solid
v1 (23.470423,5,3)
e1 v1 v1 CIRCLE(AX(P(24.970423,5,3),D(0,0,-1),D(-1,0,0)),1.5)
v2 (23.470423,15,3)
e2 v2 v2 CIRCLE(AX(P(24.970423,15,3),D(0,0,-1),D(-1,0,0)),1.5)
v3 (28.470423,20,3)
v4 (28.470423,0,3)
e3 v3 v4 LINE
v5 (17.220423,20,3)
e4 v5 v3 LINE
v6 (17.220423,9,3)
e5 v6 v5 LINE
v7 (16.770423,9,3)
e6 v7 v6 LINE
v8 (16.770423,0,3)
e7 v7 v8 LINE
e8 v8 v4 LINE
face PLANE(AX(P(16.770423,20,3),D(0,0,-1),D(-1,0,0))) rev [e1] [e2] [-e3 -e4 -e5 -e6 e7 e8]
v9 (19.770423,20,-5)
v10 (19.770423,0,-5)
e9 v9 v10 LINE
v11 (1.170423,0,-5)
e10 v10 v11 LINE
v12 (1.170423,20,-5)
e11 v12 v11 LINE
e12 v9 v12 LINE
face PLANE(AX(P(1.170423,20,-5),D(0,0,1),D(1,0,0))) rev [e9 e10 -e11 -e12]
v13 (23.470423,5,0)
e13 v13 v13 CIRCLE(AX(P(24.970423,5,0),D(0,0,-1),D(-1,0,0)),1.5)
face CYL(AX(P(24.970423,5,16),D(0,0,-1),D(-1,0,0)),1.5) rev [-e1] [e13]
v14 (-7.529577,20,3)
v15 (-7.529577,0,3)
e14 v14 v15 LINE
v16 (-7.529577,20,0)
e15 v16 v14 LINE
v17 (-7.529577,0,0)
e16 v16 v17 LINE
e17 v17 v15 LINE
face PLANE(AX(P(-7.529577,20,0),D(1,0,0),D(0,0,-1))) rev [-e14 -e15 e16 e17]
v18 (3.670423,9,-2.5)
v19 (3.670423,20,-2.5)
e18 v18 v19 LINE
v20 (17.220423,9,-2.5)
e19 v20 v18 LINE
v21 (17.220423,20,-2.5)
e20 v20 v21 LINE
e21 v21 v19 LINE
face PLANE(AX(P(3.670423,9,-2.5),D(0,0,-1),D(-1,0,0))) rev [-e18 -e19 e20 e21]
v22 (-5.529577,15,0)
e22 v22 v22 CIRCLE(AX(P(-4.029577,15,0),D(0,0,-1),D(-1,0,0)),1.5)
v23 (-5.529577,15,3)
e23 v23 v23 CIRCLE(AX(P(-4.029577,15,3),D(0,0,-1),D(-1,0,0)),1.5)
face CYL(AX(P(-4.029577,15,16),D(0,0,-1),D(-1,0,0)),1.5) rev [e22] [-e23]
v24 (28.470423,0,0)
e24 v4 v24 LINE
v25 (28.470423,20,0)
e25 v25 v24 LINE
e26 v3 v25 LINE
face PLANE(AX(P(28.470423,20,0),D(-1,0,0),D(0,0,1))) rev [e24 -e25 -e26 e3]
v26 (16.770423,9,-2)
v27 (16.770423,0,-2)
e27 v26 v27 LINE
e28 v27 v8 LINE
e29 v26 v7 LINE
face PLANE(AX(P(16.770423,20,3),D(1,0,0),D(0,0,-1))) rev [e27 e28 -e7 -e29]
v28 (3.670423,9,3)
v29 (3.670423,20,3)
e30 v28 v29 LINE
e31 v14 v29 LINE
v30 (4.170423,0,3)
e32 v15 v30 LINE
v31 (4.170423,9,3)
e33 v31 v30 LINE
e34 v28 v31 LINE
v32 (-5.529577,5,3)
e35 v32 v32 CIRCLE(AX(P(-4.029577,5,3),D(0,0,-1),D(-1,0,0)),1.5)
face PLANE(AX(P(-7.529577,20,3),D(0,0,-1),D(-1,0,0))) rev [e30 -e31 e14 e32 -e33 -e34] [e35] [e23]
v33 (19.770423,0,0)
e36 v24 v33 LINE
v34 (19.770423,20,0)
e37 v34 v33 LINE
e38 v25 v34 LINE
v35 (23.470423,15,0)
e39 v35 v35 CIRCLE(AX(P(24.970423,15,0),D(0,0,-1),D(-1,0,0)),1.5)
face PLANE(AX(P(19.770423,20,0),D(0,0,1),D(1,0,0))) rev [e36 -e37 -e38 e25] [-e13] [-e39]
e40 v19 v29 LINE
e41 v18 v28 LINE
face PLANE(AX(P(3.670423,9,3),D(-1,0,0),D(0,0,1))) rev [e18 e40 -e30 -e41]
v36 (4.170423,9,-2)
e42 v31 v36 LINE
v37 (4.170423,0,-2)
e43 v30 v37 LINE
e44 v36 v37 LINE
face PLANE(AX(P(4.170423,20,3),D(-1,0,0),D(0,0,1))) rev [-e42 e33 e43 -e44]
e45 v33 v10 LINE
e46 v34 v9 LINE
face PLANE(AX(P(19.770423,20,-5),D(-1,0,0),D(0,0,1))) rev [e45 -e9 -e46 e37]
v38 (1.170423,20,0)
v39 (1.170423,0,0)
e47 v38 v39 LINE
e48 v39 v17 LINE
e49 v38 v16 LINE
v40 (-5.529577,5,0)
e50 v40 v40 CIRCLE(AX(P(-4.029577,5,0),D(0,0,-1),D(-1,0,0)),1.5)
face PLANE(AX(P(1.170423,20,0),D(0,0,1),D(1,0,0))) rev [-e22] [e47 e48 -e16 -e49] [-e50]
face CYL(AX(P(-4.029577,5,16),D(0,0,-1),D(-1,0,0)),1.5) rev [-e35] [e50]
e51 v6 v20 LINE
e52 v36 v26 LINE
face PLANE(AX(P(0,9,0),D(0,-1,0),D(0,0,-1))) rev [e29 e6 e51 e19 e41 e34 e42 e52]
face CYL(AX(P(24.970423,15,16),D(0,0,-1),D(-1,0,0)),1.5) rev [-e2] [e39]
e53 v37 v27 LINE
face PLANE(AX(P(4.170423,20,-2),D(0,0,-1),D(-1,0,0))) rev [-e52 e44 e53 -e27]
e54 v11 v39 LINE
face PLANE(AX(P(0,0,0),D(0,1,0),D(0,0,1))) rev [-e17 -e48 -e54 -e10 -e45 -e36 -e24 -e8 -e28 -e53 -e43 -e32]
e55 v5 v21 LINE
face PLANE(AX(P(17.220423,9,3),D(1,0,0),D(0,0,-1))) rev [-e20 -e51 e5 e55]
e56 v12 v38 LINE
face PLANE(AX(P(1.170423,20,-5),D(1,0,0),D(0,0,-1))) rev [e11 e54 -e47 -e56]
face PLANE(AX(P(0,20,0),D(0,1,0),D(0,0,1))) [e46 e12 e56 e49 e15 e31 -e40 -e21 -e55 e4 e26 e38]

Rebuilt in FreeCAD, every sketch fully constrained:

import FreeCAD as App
import Part
import Sketcher

doc = App.newDocument("Part")
body = doc.addObject("PartDesign::Body", "Body")

# Sketch on XZ plane
sketch1 = body.newObject("Sketcher::SketchObject", "Sketch")
sketch1.AttachmentSupport = (doc.getObject("XZ_Plane"), [""])
sketch1.MapMode = "FlatFace"
sketch1.addGeometry([
    Part.LineSegment(App.Vector(16.770423, 3, 0), App.Vector(28.470423, 3, 0)),  # 0
    Part.LineSegment(App.Vector(28.470423, 3, 0), App.Vector(28.470423, 0, 0)),  # 1
    Part.LineSegment(App.Vector(28.470423, 0, 0), App.Vector(19.770423, 0, 0)),  # 2
    Part.LineSegment(App.Vector(19.770423, 0, 0), App.Vector(19.770423, -5, 0)),  # 3
    Part.LineSegment(App.Vector(19.770423, -5, 0), App.Vector(1.170423, -5, 0)),  # 4
    Part.LineSegment(App.Vector(1.170423, -5, 0), App.Vector(1.170423, 0, 0)),  # 5
    Part.LineSegment(App.Vector(1.170423, 0, 0), App.Vector(-7.529577, 0, 0)),  # 6
    Part.LineSegment(App.Vector(-7.529577, 0, 0), App.Vector(-7.529577, 3, 0)),  # 7
    Part.LineSegment(App.Vector(-7.529577, 3, 0), App.Vector(4.170423, 3, 0)),  # 8
    Part.LineSegment(App.Vector(4.170423, 3, 0), App.Vector(4.170423, -2, 0)),  # 9
    Part.LineSegment(App.Vector(4.170423, -2, 0), App.Vector(16.770423, -2, 0)),  # 10
    Part.LineSegment(App.Vector(16.770423, -2, 0), App.Vector(16.770423, 3, 0)),  # 11
], False)
sketch1.addConstraint([
    Sketcher.Constraint("Coincident", 0, 2, 1, 1),
    Sketcher.Constraint("Coincident", 1, 2, 2, 1),
    Sketcher.Constraint("Coincident", 2, 2, 3, 1),
    Sketcher.Constraint("Coincident", 3, 2, 4, 1),
    Sketcher.Constraint("Coincident", 4, 2, 5, 1),
    Sketcher.Constraint("Coincident", 5, 2, 6, 1),
    Sketcher.Constraint("Coincident", 6, 2, 7, 1),
    Sketcher.Constraint("Coincident", 7, 2, 8, 1),
    Sketcher.Constraint("Coincident", 8, 2, 9, 1),
    Sketcher.Constraint("Coincident", 9, 2, 10, 1),
    Sketcher.Constraint("Coincident", 10, 2, 11, 1),
    Sketcher.Constraint("Coincident", 11, 2, 0, 1),
    Sketcher.Constraint("Horizontal", 0),
    Sketcher.Constraint("Vertical", 1),
    Sketcher.Constraint("Horizontal", 2),
    Sketcher.Constraint("Vertical", 3),
    Sketcher.Constraint("Horizontal", 4),
    Sketcher.Constraint("Vertical", 5),
    Sketcher.Constraint("Horizontal", 6),
    Sketcher.Constraint("Vertical", 7),
    Sketcher.Constraint("Horizontal", 8),
    Sketcher.Constraint("Vertical", 9),
    Sketcher.Constraint("Horizontal", 10),
    Sketcher.Constraint("Vertical", 11),
    Sketcher.Constraint("PointOnObject", 1, 2, -1),
    Sketcher.Constraint("PointOnObject", 5, 2, -1),
    Sketcher.Constraint("Horizontal", 0, 2, 7, 2),
    Sketcher.Constraint("Equal", 2, 6),
    Sketcher.Constraint("Equal", 0, 8),
    Sketcher.Constraint("Equal", 5, 9),
    Sketcher.Constraint("DistanceY", 1, 2, 1, 1, 3.0),
    Sketcher.Constraint("DistanceY", 3, 2, 3, 1, 5.0),
    Sketcher.Constraint("DistanceX", 0, 1, 0, 2, 11.7),
    Sketcher.Constraint("DistanceX", 2, 2, 2, 1, 8.7),
    Sketcher.Constraint("DistanceX", 4, 2, 4, 1, 18.6),
    Sketcher.Constraint("DistanceX", -1, 1, 0, 2, 28.470423),
])
pad1 = body.newObject("PartDesign::Pad", "Pad")
pad1.Profile = sketch1
pad1.Length = 20
pad1.Reversed = True

# Sketch on XY plane
sketch2 = body.newObject("Sketcher::SketchObject", "Sketch001")
sketch2.AttachmentSupport = (doc.getObject("XY_Plane"), [""])
sketch2.MapMode = "FlatFace"
sketch2.addGeometry([
    Part.Circle(App.Vector(-4.029577, 15, 0), App.Vector(0, 0, 1), 1.5),
    Part.Circle(App.Vector(-4.029577, 5, 0), App.Vector(0, 0, 1), 1.5),
    Part.Circle(App.Vector(24.970423, 5, 0), App.Vector(0, 0, 1), 1.5),
    Part.Circle(App.Vector(24.970423, 15, 0), App.Vector(0, 0, 1), 1.5),
], False)
sketch2.addConstraint([
    Sketcher.Constraint("Equal", 0, 1),
    Sketcher.Constraint("Equal", 1, 2),
    Sketcher.Constraint("Equal", 2, 3),
    Sketcher.Constraint("Horizontal", 1, 3, 2, 3),
    Sketcher.Constraint("Horizontal", 0, 3, 3, 3),
    Sketcher.Constraint("Vertical", 0, 3, 1, 3),
    Sketcher.Constraint("Vertical", 2, 3, 3, 3),
    Sketcher.Constraint("Diameter", 0, 3.0),
    Sketcher.Constraint("DistanceY", -1, 1, 0, 3, 15.0),
    Sketcher.Constraint("DistanceY", -1, 1, 1, 3, 5.0),
    Sketcher.Constraint("DistanceX", 1, 3, 2, 3, 29.0),
    Sketcher.Constraint("DistanceX", 0, 3, -1, 1, 4.029577),
])
pocket1 = body.newObject("PartDesign::Pocket", "Pocket")
pocket1.Profile = sketch2
pocket1.Length = 16
pocket1.Reversed = True

# Sketch on XZ plane
sketch3 = body.newObject("Sketcher::SketchObject", "Sketch002")
sketch3.AttachmentSupport = (doc.getObject("XZ_Plane"), [""])
sketch3.MapMode = "FlatFace"
sketch3.AttachmentOffset = App.Placement(App.Vector(0, 0, -20), App.Rotation())
sketch3.addGeometry([
    Part.LineSegment(App.Vector(4.170423, 3, 0), App.Vector(4.170423, -2, 0)),  # 0
    Part.LineSegment(App.Vector(4.170423, -2, 0), App.Vector(16.770423, -2, 0)),  # 1
    Part.LineSegment(App.Vector(16.770423, -2, 0), App.Vector(16.770423, 3, 0)),  # 2
    Part.LineSegment(App.Vector(16.770423, 3, 0), App.Vector(17.220423, 3, 0)),  # 3
    Part.LineSegment(App.Vector(17.220423, 3, 0), App.Vector(17.220423, -2.5, 0)),  # 4
    Part.LineSegment(App.Vector(17.220423, -2.5, 0), App.Vector(3.670423, -2.5, 0)),  # 5
    Part.LineSegment(App.Vector(3.670423, -2.5, 0), App.Vector(3.670423, 3, 0)),  # 6
    Part.LineSegment(App.Vector(3.670423, 3, 0), App.Vector(4.170423, 3, 0)),  # 7
], False)
sketch3.addConstraint([
    Sketcher.Constraint("Coincident", 0, 2, 1, 1),
    Sketcher.Constraint("Coincident", 1, 2, 2, 1),
    Sketcher.Constraint("Coincident", 2, 2, 3, 1),
    Sketcher.Constraint("Coincident", 3, 2, 4, 1),
    Sketcher.Constraint("Coincident", 4, 2, 5, 1),
    Sketcher.Constraint("Coincident", 5, 2, 6, 1),
    Sketcher.Constraint("Coincident", 6, 2, 7, 1),
    Sketcher.Constraint("Coincident", 7, 2, 0, 1),
    Sketcher.Constraint("Vertical", 0),
    Sketcher.Constraint("Horizontal", 1),
    Sketcher.Constraint("Vertical", 2),
    Sketcher.Constraint("Horizontal", 3),
    Sketcher.Constraint("Vertical", 4),
    Sketcher.Constraint("Horizontal", 5),
    Sketcher.Constraint("Vertical", 6),
    Sketcher.Constraint("Horizontal", 7),
    Sketcher.Constraint("Horizontal", 3, 2, 6, 2),
    Sketcher.Constraint("DistanceY", 0, 2, 0, 1, 5.0),
    Sketcher.Constraint("DistanceX", 1, 1, 1, 2, 12.6),
    Sketcher.Constraint("DistanceX", 7, 1, 7, 2, 0.5),
    Sketcher.Constraint("DistanceY", 4, 2, 4, 1, 5.5),
    Sketcher.Constraint("DistanceY", 0, 2, -1, 1, 2.0),
    Sketcher.Constraint("DistanceX", 3, 1, 3, 2, 0.45),
    Sketcher.Constraint("DistanceX", -1, 1, 0, 2, 4.170423),
])
pocket2 = body.newObject("PartDesign::Pocket", "Pocket001")
pocket2.Profile = sketch3
pocket2.Length = 11
pocket2.Reversed = True

doc.recompute()
